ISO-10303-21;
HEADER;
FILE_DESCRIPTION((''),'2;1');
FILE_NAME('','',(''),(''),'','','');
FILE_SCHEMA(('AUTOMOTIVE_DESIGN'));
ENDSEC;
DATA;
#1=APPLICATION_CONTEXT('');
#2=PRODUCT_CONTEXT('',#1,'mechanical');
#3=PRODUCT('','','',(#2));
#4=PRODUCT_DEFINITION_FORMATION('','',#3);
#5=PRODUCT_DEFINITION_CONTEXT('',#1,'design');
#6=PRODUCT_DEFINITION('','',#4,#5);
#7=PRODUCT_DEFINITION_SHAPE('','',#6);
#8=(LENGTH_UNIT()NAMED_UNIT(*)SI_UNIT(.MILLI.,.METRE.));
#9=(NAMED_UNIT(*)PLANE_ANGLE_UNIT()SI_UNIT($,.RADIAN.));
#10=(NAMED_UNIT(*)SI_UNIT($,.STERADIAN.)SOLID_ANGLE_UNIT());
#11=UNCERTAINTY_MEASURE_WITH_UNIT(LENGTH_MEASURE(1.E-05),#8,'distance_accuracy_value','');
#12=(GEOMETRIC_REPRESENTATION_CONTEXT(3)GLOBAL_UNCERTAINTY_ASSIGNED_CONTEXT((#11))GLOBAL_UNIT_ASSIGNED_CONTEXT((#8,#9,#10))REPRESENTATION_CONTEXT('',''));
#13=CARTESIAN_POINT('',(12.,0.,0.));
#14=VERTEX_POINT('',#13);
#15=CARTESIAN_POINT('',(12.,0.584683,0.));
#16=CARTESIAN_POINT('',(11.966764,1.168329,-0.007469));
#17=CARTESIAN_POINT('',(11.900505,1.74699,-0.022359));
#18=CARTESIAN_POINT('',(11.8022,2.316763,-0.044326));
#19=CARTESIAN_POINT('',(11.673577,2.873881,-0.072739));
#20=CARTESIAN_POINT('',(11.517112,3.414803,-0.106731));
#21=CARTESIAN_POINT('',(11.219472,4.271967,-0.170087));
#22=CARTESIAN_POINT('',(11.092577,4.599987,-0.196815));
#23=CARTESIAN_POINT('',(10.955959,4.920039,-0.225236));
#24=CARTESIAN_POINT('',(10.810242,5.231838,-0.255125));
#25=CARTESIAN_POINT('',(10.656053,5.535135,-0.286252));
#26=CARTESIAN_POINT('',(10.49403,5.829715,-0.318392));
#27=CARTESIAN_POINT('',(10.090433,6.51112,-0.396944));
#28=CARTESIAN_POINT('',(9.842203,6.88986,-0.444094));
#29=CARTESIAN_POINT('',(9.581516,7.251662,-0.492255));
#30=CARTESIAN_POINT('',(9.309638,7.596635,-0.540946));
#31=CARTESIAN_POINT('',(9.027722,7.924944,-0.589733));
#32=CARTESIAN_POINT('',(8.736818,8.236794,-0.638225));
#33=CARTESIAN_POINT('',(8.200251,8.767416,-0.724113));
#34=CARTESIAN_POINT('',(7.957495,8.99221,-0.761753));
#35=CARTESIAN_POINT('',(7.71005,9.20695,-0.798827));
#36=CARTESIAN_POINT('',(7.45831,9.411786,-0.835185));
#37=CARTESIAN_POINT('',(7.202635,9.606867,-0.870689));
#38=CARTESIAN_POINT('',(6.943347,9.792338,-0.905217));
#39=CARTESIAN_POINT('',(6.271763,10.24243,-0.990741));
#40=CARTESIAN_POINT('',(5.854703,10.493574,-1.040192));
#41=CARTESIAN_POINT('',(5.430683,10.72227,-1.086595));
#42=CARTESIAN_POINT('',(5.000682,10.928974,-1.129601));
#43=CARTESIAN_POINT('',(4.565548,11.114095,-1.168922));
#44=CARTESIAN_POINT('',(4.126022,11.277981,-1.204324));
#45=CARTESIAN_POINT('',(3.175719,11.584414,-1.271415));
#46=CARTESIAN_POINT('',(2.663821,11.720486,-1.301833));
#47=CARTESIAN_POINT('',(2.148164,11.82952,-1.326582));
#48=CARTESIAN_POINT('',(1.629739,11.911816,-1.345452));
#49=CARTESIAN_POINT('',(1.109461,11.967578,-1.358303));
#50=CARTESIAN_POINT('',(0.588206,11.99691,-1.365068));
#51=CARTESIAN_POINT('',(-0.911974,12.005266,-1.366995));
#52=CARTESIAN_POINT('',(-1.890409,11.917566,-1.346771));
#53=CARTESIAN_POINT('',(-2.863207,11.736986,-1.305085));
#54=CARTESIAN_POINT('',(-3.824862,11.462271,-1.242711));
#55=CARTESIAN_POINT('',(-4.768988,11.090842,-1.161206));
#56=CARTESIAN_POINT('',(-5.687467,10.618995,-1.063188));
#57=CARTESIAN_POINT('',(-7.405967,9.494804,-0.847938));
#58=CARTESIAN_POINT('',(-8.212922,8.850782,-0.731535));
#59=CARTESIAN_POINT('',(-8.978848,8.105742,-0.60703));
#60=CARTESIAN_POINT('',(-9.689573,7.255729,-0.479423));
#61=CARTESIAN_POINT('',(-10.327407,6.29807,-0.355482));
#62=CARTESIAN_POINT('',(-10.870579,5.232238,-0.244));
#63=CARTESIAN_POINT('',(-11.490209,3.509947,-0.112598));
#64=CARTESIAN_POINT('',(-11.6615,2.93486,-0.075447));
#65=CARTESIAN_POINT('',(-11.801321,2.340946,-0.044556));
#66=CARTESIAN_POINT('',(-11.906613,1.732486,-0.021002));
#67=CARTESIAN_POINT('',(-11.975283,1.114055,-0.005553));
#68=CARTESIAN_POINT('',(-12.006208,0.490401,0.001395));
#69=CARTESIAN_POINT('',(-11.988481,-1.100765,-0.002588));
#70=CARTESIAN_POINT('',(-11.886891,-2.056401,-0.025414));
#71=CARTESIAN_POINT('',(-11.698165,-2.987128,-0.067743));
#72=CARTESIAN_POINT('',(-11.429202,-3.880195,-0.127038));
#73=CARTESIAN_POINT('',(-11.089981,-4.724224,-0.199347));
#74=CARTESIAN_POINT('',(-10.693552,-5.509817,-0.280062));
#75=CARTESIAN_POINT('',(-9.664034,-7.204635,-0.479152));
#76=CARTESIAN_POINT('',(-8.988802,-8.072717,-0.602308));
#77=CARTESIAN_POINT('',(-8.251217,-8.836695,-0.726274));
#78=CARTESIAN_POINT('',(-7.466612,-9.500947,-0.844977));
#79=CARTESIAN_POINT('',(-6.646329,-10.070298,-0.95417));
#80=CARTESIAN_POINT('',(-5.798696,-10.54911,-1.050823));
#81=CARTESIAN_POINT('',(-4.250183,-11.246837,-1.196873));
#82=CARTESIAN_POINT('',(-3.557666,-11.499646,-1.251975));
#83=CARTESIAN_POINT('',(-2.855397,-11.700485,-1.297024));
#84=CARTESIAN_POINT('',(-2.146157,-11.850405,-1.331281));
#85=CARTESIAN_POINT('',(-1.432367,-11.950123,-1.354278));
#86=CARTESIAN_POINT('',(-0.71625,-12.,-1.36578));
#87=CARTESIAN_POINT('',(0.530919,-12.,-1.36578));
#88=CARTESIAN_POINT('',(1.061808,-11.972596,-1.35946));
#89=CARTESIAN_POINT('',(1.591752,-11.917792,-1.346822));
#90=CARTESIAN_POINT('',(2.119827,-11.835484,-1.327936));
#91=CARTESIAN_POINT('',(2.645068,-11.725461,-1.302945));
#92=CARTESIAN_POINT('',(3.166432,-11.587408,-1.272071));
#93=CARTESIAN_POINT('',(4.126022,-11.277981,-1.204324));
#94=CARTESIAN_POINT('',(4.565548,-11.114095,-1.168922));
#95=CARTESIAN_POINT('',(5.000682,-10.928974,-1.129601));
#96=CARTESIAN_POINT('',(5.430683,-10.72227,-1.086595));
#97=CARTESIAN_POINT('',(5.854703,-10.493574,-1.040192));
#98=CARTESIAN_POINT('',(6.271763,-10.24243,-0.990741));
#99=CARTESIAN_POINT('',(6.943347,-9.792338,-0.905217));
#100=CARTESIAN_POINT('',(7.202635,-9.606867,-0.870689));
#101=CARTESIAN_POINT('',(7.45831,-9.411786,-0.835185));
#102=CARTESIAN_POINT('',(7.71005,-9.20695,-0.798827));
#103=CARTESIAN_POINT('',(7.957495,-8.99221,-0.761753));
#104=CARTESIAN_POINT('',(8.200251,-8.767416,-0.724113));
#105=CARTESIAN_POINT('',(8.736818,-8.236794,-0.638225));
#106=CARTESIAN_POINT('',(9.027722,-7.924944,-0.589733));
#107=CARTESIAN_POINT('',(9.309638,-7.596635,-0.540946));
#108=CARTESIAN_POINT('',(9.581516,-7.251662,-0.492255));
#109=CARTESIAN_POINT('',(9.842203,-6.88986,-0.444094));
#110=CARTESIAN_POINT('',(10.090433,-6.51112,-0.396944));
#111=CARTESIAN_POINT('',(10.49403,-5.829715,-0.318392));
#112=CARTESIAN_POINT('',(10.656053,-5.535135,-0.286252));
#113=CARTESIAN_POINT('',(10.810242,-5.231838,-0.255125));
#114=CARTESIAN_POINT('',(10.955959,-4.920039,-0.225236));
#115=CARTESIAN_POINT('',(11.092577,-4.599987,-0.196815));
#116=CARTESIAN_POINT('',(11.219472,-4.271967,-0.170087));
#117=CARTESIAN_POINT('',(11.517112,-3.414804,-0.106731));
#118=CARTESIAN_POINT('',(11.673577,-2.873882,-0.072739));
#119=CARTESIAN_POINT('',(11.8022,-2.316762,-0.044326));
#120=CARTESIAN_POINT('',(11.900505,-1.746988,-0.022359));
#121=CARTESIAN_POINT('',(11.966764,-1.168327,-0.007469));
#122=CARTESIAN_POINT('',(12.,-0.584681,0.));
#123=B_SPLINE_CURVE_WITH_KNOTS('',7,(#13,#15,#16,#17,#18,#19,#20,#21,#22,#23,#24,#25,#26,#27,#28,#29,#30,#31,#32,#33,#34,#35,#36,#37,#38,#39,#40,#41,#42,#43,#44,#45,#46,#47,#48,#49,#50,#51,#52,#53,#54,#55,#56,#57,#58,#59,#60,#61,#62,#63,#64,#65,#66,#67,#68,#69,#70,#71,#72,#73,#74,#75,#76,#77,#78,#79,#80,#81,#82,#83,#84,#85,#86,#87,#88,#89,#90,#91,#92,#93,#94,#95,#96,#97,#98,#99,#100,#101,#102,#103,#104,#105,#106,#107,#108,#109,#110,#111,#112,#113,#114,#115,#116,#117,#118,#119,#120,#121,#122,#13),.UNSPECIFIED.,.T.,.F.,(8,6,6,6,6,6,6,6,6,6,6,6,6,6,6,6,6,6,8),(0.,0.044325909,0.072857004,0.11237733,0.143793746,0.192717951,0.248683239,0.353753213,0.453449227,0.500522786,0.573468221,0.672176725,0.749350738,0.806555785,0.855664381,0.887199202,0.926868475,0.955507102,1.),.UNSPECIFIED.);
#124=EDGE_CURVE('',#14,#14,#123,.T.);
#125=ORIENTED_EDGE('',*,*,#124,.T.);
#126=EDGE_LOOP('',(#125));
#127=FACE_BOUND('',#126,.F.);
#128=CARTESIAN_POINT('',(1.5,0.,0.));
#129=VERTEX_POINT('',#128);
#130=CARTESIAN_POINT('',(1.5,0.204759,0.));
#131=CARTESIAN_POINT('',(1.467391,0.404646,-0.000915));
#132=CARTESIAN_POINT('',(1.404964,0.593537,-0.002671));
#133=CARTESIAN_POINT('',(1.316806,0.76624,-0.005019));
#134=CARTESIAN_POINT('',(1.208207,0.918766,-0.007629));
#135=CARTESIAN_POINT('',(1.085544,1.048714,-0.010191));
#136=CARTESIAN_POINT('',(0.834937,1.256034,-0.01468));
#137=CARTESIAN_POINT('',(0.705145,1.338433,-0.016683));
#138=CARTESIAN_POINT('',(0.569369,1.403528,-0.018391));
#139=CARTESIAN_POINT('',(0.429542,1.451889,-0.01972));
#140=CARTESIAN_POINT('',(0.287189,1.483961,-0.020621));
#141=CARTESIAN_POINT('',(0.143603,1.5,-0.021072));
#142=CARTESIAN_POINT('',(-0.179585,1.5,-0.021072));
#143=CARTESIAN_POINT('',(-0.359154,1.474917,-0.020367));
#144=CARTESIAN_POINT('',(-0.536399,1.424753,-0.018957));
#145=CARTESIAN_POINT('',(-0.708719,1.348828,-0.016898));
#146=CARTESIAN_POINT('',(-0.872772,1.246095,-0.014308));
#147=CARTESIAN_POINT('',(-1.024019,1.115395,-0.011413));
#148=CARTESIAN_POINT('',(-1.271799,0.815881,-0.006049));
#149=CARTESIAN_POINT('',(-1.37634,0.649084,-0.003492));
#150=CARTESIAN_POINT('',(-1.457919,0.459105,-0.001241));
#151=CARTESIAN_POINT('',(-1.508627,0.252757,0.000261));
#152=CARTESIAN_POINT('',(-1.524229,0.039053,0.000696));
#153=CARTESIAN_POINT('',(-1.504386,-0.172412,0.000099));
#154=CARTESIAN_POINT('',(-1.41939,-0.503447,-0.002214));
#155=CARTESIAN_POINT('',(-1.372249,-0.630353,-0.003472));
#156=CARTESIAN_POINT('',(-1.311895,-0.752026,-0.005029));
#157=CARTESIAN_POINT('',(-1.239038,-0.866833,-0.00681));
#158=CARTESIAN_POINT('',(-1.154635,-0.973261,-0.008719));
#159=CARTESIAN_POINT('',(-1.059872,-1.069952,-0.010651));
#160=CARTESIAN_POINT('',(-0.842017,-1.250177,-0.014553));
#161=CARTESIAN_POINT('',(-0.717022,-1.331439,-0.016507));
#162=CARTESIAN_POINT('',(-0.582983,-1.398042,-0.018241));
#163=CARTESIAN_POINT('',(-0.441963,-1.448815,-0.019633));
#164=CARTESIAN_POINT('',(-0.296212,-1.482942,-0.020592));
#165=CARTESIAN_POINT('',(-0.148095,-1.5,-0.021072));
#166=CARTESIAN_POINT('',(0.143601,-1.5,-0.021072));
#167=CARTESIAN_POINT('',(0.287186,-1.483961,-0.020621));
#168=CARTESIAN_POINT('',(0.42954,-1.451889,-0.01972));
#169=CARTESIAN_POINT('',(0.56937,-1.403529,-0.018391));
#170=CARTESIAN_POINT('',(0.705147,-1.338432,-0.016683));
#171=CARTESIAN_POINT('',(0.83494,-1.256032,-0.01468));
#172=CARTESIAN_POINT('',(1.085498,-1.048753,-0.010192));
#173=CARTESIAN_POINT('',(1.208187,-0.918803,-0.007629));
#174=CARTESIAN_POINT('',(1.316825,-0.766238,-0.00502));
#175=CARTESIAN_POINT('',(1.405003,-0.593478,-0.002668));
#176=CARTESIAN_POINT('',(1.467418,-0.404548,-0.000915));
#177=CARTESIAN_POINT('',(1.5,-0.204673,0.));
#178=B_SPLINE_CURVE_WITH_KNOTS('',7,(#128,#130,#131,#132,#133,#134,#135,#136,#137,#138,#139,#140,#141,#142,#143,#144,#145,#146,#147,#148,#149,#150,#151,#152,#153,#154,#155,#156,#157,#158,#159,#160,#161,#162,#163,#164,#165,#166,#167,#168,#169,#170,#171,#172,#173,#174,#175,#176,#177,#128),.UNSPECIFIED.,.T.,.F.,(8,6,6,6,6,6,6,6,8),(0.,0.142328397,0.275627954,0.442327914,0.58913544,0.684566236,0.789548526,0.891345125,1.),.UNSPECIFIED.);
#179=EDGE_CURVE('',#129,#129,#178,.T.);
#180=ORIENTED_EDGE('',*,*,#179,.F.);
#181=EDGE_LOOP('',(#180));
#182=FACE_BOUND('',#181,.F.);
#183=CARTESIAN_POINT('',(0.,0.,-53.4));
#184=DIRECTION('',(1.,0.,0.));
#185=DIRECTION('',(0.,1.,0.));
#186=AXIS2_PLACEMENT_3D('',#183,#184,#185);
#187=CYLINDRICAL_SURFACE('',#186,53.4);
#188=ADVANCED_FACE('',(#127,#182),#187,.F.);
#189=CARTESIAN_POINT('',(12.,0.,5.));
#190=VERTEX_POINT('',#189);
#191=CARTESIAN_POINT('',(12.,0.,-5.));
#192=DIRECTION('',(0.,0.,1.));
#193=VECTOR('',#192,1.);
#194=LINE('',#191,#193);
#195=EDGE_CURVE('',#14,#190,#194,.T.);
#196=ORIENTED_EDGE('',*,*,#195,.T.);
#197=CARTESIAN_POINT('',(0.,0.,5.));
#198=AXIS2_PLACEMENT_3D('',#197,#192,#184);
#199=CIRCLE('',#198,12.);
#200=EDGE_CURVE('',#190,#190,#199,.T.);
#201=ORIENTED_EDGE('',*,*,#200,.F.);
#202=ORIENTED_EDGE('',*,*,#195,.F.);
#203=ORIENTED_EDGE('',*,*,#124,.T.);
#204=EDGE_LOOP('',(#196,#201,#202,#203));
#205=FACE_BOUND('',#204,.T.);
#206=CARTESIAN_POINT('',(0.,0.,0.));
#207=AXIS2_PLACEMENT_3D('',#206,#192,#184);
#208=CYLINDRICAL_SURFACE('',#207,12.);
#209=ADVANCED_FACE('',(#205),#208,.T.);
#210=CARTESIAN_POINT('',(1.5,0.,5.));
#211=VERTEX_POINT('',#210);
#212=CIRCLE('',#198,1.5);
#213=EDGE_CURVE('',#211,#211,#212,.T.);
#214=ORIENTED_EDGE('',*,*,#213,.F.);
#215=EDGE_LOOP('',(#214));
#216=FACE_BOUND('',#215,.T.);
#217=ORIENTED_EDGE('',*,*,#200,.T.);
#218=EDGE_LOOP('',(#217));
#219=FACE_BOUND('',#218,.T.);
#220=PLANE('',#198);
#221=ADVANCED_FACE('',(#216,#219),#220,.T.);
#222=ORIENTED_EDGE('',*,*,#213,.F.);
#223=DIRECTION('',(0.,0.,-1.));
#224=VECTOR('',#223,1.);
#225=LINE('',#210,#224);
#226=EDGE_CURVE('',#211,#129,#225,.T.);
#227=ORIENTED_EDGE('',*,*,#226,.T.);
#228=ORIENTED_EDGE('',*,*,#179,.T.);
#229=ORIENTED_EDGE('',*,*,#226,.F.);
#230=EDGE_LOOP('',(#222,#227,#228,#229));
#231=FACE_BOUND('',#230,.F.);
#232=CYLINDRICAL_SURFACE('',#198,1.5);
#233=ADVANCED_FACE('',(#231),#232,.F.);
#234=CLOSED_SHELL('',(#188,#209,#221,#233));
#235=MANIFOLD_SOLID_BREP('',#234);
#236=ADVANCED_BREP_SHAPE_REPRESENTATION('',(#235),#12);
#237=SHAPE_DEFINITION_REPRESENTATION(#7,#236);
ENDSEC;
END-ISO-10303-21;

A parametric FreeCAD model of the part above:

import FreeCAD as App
import Part
import Sketcher

doc = App.newDocument("Part")
body = doc.addObject("PartDesign::Body", "Body")

sketch1 = doc.addObject("Sketcher::SketchObject", "Sketch")
body.addObject(sketch1)
sketch1.AttachmentSupport = (doc.XY_Plane, [""])
sketch1.MapMode = "FlatFace"
sketch1.addGeometry(Part.Circle(App.Vector(0, 0, 0), App.Vector(0, 0, 1), 12), False)
sketch1.addConstraint([
    Sketcher.Constraint("Coincident", 0, 3, -1, 1),
    Sketcher.Constraint("Diameter", 0, 24.0),
])
pad1 = doc.addObject("PartDesign::Pad", "Pad")
body.addObject(pad1)
pad1.Profile = sketch1
pad1.Length = 10
pad1.Midplane = True

sketch2 = doc.addObject("Sketcher::SketchObject", "Sketch001")
body.addObject(sketch2)
sketch2.AttachmentSupport = (doc.YZ_Plane, [""])
sketch2.MapMode = "FlatFace"
sketch2.addGeometry(Part.Circle(App.Vector(0, -53.4, 0), App.Vector(0, 0, 1), 53.4), False)
sketch2.addConstraint([
    Sketcher.Constraint("PointOnObject", 0, 3, -2),
    Sketcher.Constraint("Diameter", 0, 106.8),
    Sketcher.Constraint("DistanceY", 0, 3, -1, 1, 53.4),
])
pocket1 = doc.addObject("PartDesign::Pocket", "Pocket")
body.addObject(pocket1)
pocket1.Profile = sketch2
pocket1.Length = 25
pocket1.Midplane = True

sketch3 = doc.addObject("Sketcher::SketchObject", "Sketch002")
body.addObject(sketch3)
sketch3.AttachmentSupport = (doc.XY_Plane, [""])
sketch3.MapMode = "FlatFace"
sketch3.AttachmentOffset = App.Placement(App.Vector(0, 0, 5), App.Rotation())
sketch3.addGeometry(Part.Circle(App.Vector(0, 0, 0), App.Vector(0, 0, 1), 1.5), False)
sketch3.addConstraint([
    Sketcher.Constraint("Coincident", 0, 3, -1, 1),
    Sketcher.Constraint("Diameter", 0, 3.0),
])
pocket2 = doc.addObject("PartDesign::Pocket", "Pocket001")
body.addObject(pocket2)
pocket2.Profile = sketch3
pocket2.Type = "ThroughAll"

doc.recompute()
